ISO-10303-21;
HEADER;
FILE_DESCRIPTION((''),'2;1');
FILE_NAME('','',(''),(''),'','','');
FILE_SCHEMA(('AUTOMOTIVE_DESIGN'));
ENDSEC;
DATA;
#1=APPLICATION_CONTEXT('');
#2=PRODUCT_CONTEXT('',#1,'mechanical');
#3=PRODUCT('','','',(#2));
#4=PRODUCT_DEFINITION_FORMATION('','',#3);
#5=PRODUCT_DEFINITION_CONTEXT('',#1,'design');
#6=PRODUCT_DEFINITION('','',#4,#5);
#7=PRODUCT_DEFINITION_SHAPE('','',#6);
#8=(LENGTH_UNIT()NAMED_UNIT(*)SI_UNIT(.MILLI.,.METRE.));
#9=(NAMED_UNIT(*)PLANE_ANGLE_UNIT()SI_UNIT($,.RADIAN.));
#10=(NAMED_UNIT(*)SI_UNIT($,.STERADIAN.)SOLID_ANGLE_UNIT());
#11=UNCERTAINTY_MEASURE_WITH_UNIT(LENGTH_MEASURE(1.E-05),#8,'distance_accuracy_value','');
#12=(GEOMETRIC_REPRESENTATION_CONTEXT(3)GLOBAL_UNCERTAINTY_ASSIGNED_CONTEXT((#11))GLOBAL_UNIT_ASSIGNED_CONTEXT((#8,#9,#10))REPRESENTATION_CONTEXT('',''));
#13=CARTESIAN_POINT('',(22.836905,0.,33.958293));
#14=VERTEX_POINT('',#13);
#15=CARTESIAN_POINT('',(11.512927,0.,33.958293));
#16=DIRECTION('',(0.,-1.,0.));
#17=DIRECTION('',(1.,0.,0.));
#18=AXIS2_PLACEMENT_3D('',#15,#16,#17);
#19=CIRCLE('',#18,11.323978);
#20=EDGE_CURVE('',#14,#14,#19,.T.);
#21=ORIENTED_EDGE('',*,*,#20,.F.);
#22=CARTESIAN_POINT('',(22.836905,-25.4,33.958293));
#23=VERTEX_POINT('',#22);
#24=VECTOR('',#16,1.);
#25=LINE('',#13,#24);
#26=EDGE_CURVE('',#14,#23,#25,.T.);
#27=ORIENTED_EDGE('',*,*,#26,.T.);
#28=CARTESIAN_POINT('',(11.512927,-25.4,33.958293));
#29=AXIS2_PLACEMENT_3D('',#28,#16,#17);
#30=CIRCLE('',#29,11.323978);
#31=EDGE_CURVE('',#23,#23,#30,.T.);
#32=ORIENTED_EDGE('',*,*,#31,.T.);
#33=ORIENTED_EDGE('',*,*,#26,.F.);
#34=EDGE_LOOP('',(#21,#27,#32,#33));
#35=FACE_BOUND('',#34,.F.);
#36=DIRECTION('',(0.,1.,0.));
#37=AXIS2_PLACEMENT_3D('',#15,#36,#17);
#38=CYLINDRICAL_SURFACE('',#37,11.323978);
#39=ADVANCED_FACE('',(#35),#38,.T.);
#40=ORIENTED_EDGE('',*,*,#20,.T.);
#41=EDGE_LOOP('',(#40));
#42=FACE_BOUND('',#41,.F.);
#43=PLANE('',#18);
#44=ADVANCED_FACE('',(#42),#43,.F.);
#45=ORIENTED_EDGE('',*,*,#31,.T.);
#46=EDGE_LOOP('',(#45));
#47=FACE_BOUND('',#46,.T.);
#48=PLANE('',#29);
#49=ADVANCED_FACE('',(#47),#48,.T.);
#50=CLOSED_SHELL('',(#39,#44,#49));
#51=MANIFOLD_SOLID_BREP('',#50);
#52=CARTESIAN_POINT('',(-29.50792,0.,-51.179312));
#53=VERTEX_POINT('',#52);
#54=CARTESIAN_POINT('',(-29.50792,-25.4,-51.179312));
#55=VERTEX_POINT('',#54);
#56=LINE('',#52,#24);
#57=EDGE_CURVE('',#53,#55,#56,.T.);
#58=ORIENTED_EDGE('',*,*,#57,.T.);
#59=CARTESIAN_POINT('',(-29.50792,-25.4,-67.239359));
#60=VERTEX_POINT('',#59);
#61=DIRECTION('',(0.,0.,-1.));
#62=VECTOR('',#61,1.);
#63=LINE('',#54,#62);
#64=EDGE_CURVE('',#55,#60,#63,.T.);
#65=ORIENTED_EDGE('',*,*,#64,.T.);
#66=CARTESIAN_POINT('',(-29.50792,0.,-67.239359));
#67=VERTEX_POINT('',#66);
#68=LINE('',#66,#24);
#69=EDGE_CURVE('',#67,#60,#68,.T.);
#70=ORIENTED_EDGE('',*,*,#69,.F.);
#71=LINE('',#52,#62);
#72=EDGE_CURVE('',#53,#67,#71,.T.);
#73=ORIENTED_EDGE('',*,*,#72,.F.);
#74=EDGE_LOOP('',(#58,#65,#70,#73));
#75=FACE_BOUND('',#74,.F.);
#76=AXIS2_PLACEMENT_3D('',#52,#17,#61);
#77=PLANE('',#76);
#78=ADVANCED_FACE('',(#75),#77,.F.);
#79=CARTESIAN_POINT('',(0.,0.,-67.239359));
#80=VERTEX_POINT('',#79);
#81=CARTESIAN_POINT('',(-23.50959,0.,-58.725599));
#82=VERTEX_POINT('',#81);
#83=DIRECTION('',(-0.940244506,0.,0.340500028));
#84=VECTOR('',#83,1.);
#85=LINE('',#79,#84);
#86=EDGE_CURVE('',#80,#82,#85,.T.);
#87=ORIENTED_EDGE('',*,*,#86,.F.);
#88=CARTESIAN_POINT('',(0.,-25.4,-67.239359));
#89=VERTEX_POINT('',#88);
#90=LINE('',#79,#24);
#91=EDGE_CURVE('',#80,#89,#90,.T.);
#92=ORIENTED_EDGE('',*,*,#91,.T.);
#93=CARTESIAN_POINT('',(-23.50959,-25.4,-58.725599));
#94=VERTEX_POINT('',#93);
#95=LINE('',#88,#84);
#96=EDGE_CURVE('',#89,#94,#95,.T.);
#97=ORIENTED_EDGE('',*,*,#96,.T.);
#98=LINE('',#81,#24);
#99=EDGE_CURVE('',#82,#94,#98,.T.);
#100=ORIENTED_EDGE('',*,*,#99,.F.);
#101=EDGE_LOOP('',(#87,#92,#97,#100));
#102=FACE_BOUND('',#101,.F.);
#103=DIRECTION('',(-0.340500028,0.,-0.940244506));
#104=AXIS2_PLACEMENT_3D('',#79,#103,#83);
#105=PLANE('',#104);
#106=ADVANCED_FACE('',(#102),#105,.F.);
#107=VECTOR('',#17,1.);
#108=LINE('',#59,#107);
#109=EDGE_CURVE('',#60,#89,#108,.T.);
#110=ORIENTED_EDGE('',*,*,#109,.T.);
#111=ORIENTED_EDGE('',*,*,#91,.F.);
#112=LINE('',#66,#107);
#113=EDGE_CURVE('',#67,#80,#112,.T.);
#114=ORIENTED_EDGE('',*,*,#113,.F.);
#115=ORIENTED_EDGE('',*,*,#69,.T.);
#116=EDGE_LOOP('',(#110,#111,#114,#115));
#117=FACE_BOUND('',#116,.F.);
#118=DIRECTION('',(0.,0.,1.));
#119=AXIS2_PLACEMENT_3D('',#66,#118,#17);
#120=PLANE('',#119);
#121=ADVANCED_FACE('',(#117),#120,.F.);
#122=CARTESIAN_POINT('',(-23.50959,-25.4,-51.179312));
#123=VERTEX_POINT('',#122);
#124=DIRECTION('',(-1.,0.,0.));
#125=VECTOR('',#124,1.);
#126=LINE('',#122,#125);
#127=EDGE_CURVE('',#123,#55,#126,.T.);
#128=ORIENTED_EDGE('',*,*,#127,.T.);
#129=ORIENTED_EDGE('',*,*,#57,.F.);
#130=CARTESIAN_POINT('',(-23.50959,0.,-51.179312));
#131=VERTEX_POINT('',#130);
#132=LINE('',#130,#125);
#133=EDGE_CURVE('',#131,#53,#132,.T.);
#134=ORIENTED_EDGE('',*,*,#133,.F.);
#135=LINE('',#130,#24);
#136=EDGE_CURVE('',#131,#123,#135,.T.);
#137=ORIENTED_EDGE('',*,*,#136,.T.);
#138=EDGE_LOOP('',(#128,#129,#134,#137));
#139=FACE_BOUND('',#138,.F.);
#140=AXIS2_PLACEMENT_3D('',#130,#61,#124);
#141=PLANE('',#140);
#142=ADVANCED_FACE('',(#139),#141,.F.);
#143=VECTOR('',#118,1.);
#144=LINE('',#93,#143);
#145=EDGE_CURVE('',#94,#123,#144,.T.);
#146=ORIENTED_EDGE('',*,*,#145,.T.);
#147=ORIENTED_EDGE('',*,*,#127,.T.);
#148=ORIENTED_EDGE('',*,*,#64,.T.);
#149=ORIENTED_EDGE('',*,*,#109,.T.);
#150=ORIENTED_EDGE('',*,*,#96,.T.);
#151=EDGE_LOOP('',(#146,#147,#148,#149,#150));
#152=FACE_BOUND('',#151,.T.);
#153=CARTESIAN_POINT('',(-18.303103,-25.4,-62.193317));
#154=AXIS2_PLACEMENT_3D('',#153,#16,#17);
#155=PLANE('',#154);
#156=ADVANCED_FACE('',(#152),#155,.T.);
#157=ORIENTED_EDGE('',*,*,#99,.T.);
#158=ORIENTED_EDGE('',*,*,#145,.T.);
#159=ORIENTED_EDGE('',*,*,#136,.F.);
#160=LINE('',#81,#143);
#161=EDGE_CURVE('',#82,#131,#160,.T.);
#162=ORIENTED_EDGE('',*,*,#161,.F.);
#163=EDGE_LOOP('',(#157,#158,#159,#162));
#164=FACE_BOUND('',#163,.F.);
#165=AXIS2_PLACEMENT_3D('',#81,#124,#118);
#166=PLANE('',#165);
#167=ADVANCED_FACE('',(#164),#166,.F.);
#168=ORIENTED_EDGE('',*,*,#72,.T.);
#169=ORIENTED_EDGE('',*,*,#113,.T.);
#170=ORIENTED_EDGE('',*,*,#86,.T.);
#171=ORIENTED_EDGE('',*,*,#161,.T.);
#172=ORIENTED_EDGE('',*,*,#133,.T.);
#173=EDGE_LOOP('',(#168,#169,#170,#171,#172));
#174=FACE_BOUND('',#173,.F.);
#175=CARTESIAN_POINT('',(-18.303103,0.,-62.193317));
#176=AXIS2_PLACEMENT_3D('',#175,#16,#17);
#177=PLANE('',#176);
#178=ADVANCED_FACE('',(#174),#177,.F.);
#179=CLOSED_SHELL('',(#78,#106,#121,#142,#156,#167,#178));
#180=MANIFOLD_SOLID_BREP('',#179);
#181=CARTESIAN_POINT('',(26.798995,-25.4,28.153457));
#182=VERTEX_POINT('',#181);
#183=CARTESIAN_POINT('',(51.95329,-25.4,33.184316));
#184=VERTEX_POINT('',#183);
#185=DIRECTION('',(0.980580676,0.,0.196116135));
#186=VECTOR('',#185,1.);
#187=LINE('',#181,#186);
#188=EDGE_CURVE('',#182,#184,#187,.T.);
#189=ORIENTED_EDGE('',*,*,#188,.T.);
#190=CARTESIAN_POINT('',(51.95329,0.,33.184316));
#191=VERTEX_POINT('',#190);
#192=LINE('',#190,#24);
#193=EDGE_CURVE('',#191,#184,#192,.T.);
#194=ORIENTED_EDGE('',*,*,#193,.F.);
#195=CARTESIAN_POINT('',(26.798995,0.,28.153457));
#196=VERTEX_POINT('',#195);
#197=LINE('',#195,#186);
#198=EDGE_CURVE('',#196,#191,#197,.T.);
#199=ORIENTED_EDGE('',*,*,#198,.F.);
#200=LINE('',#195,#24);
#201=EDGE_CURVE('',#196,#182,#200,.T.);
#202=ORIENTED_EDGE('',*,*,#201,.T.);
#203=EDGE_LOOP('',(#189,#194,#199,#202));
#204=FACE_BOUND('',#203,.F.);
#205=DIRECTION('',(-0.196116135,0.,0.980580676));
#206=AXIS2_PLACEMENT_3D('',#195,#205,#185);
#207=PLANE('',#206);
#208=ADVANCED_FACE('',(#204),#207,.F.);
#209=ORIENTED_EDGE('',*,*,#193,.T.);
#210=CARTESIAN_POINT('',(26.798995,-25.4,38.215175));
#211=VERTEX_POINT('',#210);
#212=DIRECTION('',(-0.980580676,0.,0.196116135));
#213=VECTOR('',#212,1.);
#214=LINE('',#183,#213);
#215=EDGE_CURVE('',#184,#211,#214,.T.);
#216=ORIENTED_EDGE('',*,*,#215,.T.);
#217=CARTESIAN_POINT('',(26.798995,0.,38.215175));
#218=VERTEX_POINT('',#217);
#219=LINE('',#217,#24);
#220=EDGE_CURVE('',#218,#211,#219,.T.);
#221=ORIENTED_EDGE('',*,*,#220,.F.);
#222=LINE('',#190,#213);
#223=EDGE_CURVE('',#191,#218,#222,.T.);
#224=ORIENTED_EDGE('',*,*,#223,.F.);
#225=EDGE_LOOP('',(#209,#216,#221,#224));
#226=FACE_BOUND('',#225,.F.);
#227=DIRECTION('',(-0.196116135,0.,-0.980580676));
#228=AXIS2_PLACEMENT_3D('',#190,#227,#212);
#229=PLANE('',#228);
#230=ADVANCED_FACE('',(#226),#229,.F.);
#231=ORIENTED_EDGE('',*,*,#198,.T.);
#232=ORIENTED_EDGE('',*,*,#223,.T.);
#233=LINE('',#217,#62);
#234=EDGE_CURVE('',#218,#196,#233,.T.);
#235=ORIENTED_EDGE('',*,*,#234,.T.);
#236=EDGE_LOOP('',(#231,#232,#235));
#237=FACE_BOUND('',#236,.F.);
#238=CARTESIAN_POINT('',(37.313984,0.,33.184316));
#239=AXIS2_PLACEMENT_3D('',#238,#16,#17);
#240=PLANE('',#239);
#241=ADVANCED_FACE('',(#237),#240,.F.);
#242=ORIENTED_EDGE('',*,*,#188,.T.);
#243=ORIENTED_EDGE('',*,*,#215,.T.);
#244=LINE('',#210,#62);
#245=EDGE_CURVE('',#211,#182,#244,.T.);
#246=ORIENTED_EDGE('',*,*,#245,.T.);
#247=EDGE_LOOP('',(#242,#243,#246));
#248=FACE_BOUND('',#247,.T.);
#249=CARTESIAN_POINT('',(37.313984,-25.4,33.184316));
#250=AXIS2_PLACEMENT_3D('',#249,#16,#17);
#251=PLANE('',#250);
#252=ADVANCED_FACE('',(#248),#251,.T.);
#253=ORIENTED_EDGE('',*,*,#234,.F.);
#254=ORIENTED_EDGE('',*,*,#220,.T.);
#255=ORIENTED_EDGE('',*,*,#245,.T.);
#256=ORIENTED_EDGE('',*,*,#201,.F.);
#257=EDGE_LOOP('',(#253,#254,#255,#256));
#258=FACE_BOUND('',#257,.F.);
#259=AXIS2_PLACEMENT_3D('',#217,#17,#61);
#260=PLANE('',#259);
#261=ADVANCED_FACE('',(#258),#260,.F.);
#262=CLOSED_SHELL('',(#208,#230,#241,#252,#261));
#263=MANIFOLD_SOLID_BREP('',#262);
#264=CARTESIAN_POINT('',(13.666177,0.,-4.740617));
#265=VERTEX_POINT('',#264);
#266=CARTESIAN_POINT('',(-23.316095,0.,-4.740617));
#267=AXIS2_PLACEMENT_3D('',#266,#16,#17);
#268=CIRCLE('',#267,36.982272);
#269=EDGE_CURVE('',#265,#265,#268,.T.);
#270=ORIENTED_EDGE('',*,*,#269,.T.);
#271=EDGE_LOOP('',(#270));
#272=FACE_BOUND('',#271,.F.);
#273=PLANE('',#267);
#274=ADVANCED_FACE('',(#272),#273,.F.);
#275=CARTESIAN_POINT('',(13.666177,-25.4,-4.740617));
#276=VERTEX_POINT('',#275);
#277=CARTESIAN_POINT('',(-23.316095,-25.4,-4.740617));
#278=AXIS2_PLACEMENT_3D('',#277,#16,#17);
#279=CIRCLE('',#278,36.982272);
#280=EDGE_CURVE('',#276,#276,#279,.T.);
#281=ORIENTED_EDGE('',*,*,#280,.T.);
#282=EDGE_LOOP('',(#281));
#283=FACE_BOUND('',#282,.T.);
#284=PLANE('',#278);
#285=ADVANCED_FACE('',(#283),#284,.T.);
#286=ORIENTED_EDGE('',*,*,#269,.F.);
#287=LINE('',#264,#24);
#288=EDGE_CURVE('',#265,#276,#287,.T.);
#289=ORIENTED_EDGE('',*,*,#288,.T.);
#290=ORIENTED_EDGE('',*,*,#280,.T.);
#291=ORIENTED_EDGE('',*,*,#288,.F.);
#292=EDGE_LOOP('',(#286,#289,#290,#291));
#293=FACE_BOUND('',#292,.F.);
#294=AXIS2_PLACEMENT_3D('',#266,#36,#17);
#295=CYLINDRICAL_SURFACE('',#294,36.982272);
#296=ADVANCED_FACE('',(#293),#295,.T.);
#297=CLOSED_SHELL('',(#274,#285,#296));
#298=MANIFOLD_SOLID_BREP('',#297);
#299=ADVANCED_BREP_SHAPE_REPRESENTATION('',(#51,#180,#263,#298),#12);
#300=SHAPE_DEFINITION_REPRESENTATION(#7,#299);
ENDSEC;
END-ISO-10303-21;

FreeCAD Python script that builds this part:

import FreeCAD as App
import Part
import Sketcher
from FreeCAD import Vector
Q = App.Units.Quantity

doc = App.newDocument("Part")
body = doc.addObject("PartDesign::Body", "Body")
body.AllowCompound = True

# Sketch on XZ plane
sketch1 = body.newObject("Sketcher::SketchObject", "Sketch")
sketch1.AttachmentSupport = (doc.getObject("XZ_Plane"), [""])
sketch1.MapMode = "FlatFace"
sketch1.addGeometry(Part.Circle(Vector(-23.316095, -4.740617, 0), Vector(0, 0, 1), 36.982272), False)
sketch1.addGeometry(Part.Circle(Vector(11.512927, 33.958293, 0), Vector(0, 0, 1), 11.323978), False)
sketch1.addGeometry(Part.LineSegment(Vector(51.95329, 33.184316, 0), Vector(26.798995, 38.215175, 0)), False)
sketch1.addGeometry(Part.LineSegment(Vector(26.798995, 38.215175, 0), Vector(26.798995, 28.153457, 0)), False)
sketch1.addGeometry(Part.LineSegment(Vector(26.798995, 28.153457, 0), Vector(51.95329, 33.184316, 0)), False)
sketch1.addGeometry(Part.LineSegment(Vector(-23.50959, -51.179312, 0), Vector(-29.50792, -51.179312, 0)), False)
sketch1.addGeometry(Part.LineSegment(Vector(-29.50792, -51.179312, 0), Vector(-29.50792, -67.239359, 0)), False)
sketch1.addGeometry(Part.LineSegment(Vector(-29.50792, -67.239359, 0), Vector(0, -67.239359, 0)), False)
sketch1.addGeometry(Part.LineSegment(Vector(0, -67.239359, 0), Vector(-23.50959, -58.725599, 0)), False)
sketch1.addGeometry(Part.LineSegment(Vector(-23.50959, -58.725599, 0), Vector(-23.50959, -51.179312, 0)), False)
sketch1.addConstraint(Sketcher.Constraint("Coincident", 2, 2, 3, 1))
sketch1.addConstraint(Sketcher.Constraint("Coincident", 3, 2, 4, 1))
sketch1.addConstraint(Sketcher.Constraint("Coincident", 4, 2, 2, 1))
sketch1.addConstraint(Sketcher.Constraint("Coincident", 5, 2, 6, 1))
sketch1.addConstraint(Sketcher.Constraint("Coincident", 6, 2, 7, 1))
sketch1.addConstraint(Sketcher.Constraint("Coincident", 7, 2, 8, 1))
sketch1.addConstraint(Sketcher.Constraint("Coincident", 8, 2, 9, 1))
sketch1.addConstraint(Sketcher.Constraint("Coincident", 9, 2, 5, 1))
sketch1.addConstraint(Sketcher.Constraint("Vertical", 3))
sketch1.addConstraint(Sketcher.Constraint("Horizontal", 5))
sketch1.addConstraint(Sketcher.Constraint("Vertical", 6))
sketch1.addConstraint(Sketcher.Constraint("Horizontal", 7))
sketch1.addConstraint(Sketcher.Constraint("Vertical", 9))
sketch1.addConstraint(Sketcher.Constraint("PointOnObject", 7, 2, -2))
sketch1.addConstraint(Sketcher.Constraint("Equal", 2, 4))
sketch1.addConstraint(Sketcher.Constraint("Diameter", 0, 73.964544))
sketch1.addConstraint(Sketcher.Constraint("Diameter", 1, 22.647956))
sketch1.addConstraint(Sketcher.Constraint("Distance", 8, 25.003698))
sketch1.addConstraint(Sketcher.Constraint("DistanceX", 5, 2, 5, 1, 5.99833))
sketch1.addConstraint(Sketcher.Constraint("DistanceX", 7, 1, 7, 2, 29.50792))
sketch1.addConstraint(Sketcher.Constraint("DistanceY", 3, 2, 3, 1, 10.061718))
sketch1.addConstraint(Sketcher.Constraint("DistanceY", 8, 2, -1, 1, 58.725599))
sketch1.addConstraint(Sketcher.Constraint("Distance", 2, 25.652448))
sketch1.addConstraint(Sketcher.Constraint("DistanceY", 6, 2, 6, 1, 16.060047))
sketch1.addConstraint(Sketcher.Constraint("DistanceX", -1, 1, 4, 2, 51.95329))
sketch1.addConstraint(Sketcher.Constraint("DistanceY", 0, 3, 1, 3, 38.69891))
sketch1.addConstraint(Sketcher.Constraint("DistanceX", 1, 3, 2, 2, 15.286068))
sketch1.addConstraint(Sketcher.Constraint("DistanceX", 0, 3, 2, 2, 50.11509))
sketch1.addConstraint(Sketcher.Constraint("DistanceY", 5, 2, 3, 2, 79.332769))
sketch1.addConstraint(Sketcher.Constraint("DistanceY", 6, 2, 0, 3, 62.498742))
pad1 = body.newObject("PartDesign::Pad", "Pad")
pad1.Profile = sketch1
pad1.Length = Q("1 in")

doc.recompute()
